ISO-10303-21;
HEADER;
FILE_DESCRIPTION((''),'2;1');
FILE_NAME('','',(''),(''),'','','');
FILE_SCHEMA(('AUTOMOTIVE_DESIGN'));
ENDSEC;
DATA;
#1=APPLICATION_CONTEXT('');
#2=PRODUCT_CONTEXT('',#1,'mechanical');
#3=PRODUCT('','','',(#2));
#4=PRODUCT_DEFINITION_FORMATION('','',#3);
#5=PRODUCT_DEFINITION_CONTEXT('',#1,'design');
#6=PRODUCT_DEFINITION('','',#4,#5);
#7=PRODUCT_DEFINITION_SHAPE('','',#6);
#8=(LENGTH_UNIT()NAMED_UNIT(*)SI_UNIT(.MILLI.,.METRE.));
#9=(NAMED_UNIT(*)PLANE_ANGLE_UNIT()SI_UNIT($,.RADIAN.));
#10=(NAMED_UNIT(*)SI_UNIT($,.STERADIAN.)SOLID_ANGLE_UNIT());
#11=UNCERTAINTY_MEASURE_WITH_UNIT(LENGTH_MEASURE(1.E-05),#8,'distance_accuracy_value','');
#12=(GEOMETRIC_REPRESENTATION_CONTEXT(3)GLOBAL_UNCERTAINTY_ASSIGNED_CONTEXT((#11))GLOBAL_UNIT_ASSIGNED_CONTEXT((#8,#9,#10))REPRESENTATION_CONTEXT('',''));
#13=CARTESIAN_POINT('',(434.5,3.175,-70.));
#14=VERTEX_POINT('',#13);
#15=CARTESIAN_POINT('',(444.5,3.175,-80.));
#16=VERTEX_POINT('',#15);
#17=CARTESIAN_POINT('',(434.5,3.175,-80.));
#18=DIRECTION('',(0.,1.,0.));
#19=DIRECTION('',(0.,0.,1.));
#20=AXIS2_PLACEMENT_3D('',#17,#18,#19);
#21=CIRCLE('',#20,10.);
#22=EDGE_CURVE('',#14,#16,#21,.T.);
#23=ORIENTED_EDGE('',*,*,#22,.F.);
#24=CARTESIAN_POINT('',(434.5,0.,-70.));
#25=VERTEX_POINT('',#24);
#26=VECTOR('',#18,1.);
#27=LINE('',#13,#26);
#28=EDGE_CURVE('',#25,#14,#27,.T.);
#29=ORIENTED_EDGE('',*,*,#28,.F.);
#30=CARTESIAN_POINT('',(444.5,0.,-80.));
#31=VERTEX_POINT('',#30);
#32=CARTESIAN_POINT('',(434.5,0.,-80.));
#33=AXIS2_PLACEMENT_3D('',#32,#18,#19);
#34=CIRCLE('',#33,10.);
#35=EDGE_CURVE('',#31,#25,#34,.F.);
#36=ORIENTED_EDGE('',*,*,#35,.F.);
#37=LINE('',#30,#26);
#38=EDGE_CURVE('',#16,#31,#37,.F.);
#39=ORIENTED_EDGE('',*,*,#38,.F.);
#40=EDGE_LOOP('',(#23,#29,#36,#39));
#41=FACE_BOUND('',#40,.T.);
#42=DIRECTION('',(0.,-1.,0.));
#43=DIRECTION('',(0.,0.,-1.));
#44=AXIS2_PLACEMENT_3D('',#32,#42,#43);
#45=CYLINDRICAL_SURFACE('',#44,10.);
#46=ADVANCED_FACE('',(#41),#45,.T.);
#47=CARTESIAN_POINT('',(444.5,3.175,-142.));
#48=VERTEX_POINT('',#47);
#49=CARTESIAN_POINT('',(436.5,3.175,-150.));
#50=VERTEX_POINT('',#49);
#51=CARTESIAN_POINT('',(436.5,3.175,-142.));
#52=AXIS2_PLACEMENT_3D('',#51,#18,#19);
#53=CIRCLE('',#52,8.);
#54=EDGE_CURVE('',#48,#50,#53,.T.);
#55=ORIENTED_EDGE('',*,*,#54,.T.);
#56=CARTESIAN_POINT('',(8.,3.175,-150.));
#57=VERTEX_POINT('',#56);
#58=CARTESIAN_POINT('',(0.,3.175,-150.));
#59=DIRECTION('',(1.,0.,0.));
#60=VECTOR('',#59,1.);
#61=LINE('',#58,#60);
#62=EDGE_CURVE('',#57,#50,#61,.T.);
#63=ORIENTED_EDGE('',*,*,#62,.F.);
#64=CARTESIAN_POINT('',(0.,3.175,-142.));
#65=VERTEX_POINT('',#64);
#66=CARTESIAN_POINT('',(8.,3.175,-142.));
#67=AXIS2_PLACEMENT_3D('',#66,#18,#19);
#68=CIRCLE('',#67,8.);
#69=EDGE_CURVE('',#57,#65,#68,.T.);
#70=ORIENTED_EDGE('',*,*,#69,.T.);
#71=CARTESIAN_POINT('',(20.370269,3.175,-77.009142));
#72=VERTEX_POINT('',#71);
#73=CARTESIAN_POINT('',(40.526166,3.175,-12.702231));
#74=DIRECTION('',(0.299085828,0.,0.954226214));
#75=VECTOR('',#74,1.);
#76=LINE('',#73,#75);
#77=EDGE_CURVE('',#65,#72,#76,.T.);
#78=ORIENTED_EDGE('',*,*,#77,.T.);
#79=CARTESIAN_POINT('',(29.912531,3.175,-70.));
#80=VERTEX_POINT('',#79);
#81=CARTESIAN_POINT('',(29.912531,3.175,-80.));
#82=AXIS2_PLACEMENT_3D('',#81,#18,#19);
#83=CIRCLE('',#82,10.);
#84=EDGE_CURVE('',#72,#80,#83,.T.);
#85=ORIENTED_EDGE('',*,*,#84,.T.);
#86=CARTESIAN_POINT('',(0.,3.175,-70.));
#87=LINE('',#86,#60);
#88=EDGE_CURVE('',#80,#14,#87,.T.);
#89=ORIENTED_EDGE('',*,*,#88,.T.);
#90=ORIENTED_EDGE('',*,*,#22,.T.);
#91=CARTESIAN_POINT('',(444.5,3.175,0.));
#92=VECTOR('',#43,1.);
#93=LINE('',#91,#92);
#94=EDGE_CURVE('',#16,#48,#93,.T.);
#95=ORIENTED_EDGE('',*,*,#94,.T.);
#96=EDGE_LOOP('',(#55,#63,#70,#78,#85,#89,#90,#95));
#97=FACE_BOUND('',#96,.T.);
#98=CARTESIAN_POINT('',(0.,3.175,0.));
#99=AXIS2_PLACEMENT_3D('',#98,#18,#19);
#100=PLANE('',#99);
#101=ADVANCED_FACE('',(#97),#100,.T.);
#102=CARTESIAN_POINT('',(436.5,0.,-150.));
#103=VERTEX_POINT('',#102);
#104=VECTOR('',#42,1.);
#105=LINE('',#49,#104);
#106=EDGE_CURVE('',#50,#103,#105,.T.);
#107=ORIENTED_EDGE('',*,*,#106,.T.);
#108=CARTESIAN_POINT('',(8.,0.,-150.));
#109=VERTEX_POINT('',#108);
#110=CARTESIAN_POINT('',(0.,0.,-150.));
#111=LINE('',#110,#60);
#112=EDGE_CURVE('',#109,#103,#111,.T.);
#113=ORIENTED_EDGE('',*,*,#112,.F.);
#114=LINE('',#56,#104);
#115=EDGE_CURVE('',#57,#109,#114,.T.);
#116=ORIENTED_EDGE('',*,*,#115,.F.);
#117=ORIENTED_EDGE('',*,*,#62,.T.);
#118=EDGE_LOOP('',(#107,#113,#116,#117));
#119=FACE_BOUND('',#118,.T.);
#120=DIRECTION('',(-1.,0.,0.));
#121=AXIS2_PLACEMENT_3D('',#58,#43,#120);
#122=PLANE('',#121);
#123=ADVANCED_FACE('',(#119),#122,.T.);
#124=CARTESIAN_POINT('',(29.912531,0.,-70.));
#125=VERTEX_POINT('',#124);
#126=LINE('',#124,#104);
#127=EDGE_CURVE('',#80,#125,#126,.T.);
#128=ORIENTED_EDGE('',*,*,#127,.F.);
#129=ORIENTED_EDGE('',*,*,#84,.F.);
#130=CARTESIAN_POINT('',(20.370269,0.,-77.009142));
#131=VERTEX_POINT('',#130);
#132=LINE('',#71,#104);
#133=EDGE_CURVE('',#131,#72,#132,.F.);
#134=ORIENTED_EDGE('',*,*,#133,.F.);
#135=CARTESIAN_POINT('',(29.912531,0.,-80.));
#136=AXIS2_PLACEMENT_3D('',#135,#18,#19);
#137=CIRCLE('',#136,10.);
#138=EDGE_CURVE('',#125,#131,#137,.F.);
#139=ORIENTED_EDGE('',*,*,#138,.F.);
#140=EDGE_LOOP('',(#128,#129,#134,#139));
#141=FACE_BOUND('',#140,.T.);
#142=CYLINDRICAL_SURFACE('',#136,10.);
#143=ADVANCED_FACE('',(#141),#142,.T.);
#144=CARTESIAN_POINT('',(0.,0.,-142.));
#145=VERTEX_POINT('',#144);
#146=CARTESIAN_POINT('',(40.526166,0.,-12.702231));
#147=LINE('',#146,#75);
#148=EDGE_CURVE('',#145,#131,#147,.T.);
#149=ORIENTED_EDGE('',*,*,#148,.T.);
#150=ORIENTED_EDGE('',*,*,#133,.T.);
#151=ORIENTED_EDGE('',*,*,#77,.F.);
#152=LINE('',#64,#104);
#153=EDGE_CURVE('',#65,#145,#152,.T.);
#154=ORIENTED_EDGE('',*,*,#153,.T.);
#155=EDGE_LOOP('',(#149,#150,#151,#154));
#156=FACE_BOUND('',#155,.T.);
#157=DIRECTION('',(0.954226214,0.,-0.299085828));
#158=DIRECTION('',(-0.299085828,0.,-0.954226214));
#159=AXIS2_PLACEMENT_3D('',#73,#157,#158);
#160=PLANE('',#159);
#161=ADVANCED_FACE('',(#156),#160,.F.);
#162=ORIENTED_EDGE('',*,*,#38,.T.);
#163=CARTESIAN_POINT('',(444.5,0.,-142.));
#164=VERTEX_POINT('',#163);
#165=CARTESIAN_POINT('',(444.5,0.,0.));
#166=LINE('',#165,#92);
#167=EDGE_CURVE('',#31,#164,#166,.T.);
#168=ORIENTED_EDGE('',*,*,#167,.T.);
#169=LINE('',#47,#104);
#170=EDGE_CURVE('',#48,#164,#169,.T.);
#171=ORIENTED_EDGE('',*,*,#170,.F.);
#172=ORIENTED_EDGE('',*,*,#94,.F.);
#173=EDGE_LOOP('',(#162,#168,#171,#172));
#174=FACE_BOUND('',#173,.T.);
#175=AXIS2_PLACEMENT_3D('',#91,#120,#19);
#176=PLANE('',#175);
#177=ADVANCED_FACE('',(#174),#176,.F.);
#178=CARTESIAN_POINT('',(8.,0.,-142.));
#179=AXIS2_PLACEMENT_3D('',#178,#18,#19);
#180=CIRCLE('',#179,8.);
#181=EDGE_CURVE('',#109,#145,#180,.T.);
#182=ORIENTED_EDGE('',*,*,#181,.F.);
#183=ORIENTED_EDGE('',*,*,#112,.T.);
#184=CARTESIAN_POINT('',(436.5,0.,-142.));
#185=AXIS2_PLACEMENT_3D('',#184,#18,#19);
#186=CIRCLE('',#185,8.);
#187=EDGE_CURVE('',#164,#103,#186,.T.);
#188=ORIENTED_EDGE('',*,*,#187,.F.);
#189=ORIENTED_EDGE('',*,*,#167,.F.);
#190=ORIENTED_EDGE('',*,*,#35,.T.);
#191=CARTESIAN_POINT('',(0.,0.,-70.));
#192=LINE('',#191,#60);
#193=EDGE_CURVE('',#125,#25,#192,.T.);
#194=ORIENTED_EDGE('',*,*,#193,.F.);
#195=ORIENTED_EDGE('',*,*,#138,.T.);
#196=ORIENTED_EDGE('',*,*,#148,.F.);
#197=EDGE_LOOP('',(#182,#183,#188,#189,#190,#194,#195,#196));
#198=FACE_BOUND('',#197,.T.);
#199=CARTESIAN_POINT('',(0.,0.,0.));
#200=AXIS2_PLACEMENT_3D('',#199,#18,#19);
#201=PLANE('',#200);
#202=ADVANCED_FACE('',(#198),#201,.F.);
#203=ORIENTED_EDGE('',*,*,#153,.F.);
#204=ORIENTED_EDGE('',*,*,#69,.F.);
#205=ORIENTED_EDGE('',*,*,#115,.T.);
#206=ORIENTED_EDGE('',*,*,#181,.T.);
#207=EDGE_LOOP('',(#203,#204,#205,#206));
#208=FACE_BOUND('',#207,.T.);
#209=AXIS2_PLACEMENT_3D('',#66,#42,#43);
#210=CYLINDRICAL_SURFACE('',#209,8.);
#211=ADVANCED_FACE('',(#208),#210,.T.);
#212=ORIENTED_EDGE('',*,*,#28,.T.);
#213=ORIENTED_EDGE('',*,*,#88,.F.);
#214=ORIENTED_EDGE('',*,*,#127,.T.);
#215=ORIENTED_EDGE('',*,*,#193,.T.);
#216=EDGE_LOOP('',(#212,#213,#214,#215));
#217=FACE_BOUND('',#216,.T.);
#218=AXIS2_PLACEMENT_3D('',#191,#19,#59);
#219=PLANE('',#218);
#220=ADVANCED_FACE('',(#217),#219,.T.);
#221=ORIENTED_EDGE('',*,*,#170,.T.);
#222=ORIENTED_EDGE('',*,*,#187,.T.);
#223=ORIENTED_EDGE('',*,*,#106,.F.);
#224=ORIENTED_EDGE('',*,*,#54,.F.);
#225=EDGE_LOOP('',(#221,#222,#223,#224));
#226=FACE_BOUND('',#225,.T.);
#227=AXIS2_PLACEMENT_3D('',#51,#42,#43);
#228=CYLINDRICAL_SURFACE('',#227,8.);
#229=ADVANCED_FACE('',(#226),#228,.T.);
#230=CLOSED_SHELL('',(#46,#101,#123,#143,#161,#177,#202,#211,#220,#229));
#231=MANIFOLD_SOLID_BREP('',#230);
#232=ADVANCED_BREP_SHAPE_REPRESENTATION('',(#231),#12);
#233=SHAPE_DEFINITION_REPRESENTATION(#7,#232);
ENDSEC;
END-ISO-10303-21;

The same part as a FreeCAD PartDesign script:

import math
import FreeCAD as App
import Part
import Sketcher

V = App.Vector
Q = App.Units.Quantity


def edges_at(feature, points):
    """Names of the edges that pass closest to the given points."""
    edges = feature.Shape.Edges
    near = lambda p: min(range(len(edges)), key=lambda i: edges[i].distToShape(Part.Vertex(*p))[0])
    return sorted({f"Edge{near(p) + 1}" for p in points})

doc = App.newDocument("Part")
body = doc.addObject("PartDesign::Body", "Body")

# Sketch on XZ plane
sketch1 = body.newObject("Sketcher::SketchObject", "Sketch")
sketch1.AttachmentSupport = (doc.getObject("XZ_Plane"), [""])
sketch1.MapMode = "FlatFace"
sketch1.addGeometry(Part.ArcOfCircle(Part.Circle(V(8, -142, 0), V(0, 0, 1), 8), math.radians(-180), math.radians(-90)), False)
sketch1.addGeometry(Part.LineSegment(V(0, -142, 0), V(42, -8, 0)), False)
sketch1.addGeometry(Part.ArcOfCircle(Part.Circle(V(50, -8, 0), V(0, 0, 1), 8), math.radians(90), math.radians(180)), False)
sketch1.addGeometry(Part.LineSegment(V(50, 0, 0), V(436, 0, 0)), False)
sketch1.addGeometry(Part.ArcOfCircle(Part.Circle(V(436, -8, 0), V(0, 0, 1), 8), math.radians(0), math.radians(90)), False)
sketch1.addGeometry(Part.LineSegment(V(444, -8, 0), V(444, -142, 0)), False)
sketch1.addGeometry(Part.ArcOfCircle(Part.Circle(V(436, -142, 0), V(0, 0, 1), 8), math.radians(-90), math.radians(0)), False)
sketch1.addGeometry(Part.LineSegment(V(436, -150, 0), V(8, -150, 0)), False)
sketch1.addConstraint(Sketcher.Constraint("Coincident", 0, 1, 1, 1))
sketch1.addConstraint(Sketcher.Constraint("Coincident", 1, 2, 2, 2))
sketch1.addConstraint(Sketcher.Constraint("Tangent", 2, 1, 3, 1))
sketch1.addConstraint(Sketcher.Constraint("Tangent", 3, 2, 4, 2))
sketch1.addConstraint(Sketcher.Constraint("Tangent", 4, 1, 5, 1))
sketch1.addConstraint(Sketcher.Constraint("Tangent", 5, 2, 6, 2))
sketch1.addConstraint(Sketcher.Constraint("Tangent", 6, 1, 7, 1))
sketch1.addConstraint(Sketcher.Constraint("Tangent", 7, 2, 0, 2))
sketch1.addConstraint(Sketcher.Constraint("Horizontal", 3))
sketch1.addConstraint(Sketcher.Constraint("Vertical", 5))
sketch1.addConstraint(Sketcher.Constraint("Horizontal", 7))
sketch1.addConstraint(Sketcher.Constraint("Equal", 0, 2))
sketch1.addConstraint(Sketcher.Constraint("Equal", 2, 4))
sketch1.addConstraint(Sketcher.Constraint("Equal", 4, 6))
sketch1.addConstraint(Sketcher.Constraint("PointOnObject", 0, 1, -2))
sketch1.addConstraint(Sketcher.Constraint("PointOnObject", 2, 1, -1))
sketch1.addConstraint(Sketcher.Constraint("Horizontal", 6, 3, 0, 1))
sketch1.addConstraint(Sketcher.Constraint("Horizontal", 4, 3, 1, 2))
sketch1.addConstraint(Sketcher.Constraint("Radius", 0, Q("8 mm")))
sketch1.addConstraint(Sketcher.Constraint("DistanceY", 5, 2, 5, 1, Q("134 mm")))
sketch1.addConstraint(Sketcher.Constraint("DistanceX", 3, 1, 3, 2, Q("386.5 mm")))
sketch1.addConstraint(Sketcher.Constraint("DistanceX", 7, 2, 7, 1, Q("428.5 mm")))
pad1 = body.newObject("PartDesign::Pad", "Pad")
pad1.Profile = sketch1
pad1.Length = 3.175
pad1.Reversed = True

# Sketch on XY plane
sketch2 = body.newObject("Sketcher::SketchObject", "Sketch001")
sketch2.AttachmentSupport = (doc.getObject("XY_Plane"), [""])
sketch2.MapMode = "FlatFace"
sketch2.addGeometry(Part.LineSegment(V(-79, 38, 0), V(-79, -23, 0)), False)
sketch2.addGeometry(Part.LineSegment(V(-79, -23, 0), V(519, -23, 0)), False)
sketch2.addGeometry(Part.LineSegment(V(519, -23, 0), V(519, 38, 0)), False)
sketch2.addGeometry(Part.LineSegment(V(519, 38, 0), V(-79, 38, 0)), False)
sketch2.addConstraint(Sketcher.Constraint("Coincident", 0, 2, 1, 1))
sketch2.addConstraint(Sketcher.Constraint("Coincident", 1, 2, 2, 1))
sketch2.addConstraint(Sketcher.Constraint("Coincident", 2, 2, 3, 1))
sketch2.addConstraint(Sketcher.Constraint("Coincident", 3, 2, 0, 1))
sketch2.addConstraint(Sketcher.Constraint("Vertical", 0))
sketch2.addConstraint(Sketcher.Constraint("Horizontal", 1))
sketch2.addConstraint(Sketcher.Constraint("Vertical", 2))
sketch2.addConstraint(Sketcher.Constraint("Horizontal", 3))
sketch2.addConstraint(Sketcher.Constraint("DistanceX", 1, 1, 1, 2, Q("597.466303 mm")))
sketch2.addConstraint(Sketcher.Constraint("DistanceY", 0, 2, 0, 1, Q("60.972543 mm")))
sketch2.addConstraint(Sketcher.Constraint("DistanceX", 0, 2, -1, 1, Q("78.554618 mm")))
sketch2.addConstraint(Sketcher.Constraint("DistanceY", -1, 1, 2, 2, Q("38.03063 mm")))
pocket1 = body.newObject("PartDesign::Pocket", "Pocket")
pocket1.Profile = sketch2
pocket1.Length = 70
doc.recompute()

fillet = body.newObject("PartDesign::Fillet", "Fillet")
fillet.Base = (pocket1, edges_at(pocket1, [(22.567, 1.587, -70)]))
fillet.Radius = 10
doc.recompute()

fillet2 = body.newObject("PartDesign::Fillet", "Fillet001")
fillet2.Base = (fillet, edges_at(fillet, [(444.5, 1.587, -70)]))
fillet2.Radius = 10

doc.recompute()
